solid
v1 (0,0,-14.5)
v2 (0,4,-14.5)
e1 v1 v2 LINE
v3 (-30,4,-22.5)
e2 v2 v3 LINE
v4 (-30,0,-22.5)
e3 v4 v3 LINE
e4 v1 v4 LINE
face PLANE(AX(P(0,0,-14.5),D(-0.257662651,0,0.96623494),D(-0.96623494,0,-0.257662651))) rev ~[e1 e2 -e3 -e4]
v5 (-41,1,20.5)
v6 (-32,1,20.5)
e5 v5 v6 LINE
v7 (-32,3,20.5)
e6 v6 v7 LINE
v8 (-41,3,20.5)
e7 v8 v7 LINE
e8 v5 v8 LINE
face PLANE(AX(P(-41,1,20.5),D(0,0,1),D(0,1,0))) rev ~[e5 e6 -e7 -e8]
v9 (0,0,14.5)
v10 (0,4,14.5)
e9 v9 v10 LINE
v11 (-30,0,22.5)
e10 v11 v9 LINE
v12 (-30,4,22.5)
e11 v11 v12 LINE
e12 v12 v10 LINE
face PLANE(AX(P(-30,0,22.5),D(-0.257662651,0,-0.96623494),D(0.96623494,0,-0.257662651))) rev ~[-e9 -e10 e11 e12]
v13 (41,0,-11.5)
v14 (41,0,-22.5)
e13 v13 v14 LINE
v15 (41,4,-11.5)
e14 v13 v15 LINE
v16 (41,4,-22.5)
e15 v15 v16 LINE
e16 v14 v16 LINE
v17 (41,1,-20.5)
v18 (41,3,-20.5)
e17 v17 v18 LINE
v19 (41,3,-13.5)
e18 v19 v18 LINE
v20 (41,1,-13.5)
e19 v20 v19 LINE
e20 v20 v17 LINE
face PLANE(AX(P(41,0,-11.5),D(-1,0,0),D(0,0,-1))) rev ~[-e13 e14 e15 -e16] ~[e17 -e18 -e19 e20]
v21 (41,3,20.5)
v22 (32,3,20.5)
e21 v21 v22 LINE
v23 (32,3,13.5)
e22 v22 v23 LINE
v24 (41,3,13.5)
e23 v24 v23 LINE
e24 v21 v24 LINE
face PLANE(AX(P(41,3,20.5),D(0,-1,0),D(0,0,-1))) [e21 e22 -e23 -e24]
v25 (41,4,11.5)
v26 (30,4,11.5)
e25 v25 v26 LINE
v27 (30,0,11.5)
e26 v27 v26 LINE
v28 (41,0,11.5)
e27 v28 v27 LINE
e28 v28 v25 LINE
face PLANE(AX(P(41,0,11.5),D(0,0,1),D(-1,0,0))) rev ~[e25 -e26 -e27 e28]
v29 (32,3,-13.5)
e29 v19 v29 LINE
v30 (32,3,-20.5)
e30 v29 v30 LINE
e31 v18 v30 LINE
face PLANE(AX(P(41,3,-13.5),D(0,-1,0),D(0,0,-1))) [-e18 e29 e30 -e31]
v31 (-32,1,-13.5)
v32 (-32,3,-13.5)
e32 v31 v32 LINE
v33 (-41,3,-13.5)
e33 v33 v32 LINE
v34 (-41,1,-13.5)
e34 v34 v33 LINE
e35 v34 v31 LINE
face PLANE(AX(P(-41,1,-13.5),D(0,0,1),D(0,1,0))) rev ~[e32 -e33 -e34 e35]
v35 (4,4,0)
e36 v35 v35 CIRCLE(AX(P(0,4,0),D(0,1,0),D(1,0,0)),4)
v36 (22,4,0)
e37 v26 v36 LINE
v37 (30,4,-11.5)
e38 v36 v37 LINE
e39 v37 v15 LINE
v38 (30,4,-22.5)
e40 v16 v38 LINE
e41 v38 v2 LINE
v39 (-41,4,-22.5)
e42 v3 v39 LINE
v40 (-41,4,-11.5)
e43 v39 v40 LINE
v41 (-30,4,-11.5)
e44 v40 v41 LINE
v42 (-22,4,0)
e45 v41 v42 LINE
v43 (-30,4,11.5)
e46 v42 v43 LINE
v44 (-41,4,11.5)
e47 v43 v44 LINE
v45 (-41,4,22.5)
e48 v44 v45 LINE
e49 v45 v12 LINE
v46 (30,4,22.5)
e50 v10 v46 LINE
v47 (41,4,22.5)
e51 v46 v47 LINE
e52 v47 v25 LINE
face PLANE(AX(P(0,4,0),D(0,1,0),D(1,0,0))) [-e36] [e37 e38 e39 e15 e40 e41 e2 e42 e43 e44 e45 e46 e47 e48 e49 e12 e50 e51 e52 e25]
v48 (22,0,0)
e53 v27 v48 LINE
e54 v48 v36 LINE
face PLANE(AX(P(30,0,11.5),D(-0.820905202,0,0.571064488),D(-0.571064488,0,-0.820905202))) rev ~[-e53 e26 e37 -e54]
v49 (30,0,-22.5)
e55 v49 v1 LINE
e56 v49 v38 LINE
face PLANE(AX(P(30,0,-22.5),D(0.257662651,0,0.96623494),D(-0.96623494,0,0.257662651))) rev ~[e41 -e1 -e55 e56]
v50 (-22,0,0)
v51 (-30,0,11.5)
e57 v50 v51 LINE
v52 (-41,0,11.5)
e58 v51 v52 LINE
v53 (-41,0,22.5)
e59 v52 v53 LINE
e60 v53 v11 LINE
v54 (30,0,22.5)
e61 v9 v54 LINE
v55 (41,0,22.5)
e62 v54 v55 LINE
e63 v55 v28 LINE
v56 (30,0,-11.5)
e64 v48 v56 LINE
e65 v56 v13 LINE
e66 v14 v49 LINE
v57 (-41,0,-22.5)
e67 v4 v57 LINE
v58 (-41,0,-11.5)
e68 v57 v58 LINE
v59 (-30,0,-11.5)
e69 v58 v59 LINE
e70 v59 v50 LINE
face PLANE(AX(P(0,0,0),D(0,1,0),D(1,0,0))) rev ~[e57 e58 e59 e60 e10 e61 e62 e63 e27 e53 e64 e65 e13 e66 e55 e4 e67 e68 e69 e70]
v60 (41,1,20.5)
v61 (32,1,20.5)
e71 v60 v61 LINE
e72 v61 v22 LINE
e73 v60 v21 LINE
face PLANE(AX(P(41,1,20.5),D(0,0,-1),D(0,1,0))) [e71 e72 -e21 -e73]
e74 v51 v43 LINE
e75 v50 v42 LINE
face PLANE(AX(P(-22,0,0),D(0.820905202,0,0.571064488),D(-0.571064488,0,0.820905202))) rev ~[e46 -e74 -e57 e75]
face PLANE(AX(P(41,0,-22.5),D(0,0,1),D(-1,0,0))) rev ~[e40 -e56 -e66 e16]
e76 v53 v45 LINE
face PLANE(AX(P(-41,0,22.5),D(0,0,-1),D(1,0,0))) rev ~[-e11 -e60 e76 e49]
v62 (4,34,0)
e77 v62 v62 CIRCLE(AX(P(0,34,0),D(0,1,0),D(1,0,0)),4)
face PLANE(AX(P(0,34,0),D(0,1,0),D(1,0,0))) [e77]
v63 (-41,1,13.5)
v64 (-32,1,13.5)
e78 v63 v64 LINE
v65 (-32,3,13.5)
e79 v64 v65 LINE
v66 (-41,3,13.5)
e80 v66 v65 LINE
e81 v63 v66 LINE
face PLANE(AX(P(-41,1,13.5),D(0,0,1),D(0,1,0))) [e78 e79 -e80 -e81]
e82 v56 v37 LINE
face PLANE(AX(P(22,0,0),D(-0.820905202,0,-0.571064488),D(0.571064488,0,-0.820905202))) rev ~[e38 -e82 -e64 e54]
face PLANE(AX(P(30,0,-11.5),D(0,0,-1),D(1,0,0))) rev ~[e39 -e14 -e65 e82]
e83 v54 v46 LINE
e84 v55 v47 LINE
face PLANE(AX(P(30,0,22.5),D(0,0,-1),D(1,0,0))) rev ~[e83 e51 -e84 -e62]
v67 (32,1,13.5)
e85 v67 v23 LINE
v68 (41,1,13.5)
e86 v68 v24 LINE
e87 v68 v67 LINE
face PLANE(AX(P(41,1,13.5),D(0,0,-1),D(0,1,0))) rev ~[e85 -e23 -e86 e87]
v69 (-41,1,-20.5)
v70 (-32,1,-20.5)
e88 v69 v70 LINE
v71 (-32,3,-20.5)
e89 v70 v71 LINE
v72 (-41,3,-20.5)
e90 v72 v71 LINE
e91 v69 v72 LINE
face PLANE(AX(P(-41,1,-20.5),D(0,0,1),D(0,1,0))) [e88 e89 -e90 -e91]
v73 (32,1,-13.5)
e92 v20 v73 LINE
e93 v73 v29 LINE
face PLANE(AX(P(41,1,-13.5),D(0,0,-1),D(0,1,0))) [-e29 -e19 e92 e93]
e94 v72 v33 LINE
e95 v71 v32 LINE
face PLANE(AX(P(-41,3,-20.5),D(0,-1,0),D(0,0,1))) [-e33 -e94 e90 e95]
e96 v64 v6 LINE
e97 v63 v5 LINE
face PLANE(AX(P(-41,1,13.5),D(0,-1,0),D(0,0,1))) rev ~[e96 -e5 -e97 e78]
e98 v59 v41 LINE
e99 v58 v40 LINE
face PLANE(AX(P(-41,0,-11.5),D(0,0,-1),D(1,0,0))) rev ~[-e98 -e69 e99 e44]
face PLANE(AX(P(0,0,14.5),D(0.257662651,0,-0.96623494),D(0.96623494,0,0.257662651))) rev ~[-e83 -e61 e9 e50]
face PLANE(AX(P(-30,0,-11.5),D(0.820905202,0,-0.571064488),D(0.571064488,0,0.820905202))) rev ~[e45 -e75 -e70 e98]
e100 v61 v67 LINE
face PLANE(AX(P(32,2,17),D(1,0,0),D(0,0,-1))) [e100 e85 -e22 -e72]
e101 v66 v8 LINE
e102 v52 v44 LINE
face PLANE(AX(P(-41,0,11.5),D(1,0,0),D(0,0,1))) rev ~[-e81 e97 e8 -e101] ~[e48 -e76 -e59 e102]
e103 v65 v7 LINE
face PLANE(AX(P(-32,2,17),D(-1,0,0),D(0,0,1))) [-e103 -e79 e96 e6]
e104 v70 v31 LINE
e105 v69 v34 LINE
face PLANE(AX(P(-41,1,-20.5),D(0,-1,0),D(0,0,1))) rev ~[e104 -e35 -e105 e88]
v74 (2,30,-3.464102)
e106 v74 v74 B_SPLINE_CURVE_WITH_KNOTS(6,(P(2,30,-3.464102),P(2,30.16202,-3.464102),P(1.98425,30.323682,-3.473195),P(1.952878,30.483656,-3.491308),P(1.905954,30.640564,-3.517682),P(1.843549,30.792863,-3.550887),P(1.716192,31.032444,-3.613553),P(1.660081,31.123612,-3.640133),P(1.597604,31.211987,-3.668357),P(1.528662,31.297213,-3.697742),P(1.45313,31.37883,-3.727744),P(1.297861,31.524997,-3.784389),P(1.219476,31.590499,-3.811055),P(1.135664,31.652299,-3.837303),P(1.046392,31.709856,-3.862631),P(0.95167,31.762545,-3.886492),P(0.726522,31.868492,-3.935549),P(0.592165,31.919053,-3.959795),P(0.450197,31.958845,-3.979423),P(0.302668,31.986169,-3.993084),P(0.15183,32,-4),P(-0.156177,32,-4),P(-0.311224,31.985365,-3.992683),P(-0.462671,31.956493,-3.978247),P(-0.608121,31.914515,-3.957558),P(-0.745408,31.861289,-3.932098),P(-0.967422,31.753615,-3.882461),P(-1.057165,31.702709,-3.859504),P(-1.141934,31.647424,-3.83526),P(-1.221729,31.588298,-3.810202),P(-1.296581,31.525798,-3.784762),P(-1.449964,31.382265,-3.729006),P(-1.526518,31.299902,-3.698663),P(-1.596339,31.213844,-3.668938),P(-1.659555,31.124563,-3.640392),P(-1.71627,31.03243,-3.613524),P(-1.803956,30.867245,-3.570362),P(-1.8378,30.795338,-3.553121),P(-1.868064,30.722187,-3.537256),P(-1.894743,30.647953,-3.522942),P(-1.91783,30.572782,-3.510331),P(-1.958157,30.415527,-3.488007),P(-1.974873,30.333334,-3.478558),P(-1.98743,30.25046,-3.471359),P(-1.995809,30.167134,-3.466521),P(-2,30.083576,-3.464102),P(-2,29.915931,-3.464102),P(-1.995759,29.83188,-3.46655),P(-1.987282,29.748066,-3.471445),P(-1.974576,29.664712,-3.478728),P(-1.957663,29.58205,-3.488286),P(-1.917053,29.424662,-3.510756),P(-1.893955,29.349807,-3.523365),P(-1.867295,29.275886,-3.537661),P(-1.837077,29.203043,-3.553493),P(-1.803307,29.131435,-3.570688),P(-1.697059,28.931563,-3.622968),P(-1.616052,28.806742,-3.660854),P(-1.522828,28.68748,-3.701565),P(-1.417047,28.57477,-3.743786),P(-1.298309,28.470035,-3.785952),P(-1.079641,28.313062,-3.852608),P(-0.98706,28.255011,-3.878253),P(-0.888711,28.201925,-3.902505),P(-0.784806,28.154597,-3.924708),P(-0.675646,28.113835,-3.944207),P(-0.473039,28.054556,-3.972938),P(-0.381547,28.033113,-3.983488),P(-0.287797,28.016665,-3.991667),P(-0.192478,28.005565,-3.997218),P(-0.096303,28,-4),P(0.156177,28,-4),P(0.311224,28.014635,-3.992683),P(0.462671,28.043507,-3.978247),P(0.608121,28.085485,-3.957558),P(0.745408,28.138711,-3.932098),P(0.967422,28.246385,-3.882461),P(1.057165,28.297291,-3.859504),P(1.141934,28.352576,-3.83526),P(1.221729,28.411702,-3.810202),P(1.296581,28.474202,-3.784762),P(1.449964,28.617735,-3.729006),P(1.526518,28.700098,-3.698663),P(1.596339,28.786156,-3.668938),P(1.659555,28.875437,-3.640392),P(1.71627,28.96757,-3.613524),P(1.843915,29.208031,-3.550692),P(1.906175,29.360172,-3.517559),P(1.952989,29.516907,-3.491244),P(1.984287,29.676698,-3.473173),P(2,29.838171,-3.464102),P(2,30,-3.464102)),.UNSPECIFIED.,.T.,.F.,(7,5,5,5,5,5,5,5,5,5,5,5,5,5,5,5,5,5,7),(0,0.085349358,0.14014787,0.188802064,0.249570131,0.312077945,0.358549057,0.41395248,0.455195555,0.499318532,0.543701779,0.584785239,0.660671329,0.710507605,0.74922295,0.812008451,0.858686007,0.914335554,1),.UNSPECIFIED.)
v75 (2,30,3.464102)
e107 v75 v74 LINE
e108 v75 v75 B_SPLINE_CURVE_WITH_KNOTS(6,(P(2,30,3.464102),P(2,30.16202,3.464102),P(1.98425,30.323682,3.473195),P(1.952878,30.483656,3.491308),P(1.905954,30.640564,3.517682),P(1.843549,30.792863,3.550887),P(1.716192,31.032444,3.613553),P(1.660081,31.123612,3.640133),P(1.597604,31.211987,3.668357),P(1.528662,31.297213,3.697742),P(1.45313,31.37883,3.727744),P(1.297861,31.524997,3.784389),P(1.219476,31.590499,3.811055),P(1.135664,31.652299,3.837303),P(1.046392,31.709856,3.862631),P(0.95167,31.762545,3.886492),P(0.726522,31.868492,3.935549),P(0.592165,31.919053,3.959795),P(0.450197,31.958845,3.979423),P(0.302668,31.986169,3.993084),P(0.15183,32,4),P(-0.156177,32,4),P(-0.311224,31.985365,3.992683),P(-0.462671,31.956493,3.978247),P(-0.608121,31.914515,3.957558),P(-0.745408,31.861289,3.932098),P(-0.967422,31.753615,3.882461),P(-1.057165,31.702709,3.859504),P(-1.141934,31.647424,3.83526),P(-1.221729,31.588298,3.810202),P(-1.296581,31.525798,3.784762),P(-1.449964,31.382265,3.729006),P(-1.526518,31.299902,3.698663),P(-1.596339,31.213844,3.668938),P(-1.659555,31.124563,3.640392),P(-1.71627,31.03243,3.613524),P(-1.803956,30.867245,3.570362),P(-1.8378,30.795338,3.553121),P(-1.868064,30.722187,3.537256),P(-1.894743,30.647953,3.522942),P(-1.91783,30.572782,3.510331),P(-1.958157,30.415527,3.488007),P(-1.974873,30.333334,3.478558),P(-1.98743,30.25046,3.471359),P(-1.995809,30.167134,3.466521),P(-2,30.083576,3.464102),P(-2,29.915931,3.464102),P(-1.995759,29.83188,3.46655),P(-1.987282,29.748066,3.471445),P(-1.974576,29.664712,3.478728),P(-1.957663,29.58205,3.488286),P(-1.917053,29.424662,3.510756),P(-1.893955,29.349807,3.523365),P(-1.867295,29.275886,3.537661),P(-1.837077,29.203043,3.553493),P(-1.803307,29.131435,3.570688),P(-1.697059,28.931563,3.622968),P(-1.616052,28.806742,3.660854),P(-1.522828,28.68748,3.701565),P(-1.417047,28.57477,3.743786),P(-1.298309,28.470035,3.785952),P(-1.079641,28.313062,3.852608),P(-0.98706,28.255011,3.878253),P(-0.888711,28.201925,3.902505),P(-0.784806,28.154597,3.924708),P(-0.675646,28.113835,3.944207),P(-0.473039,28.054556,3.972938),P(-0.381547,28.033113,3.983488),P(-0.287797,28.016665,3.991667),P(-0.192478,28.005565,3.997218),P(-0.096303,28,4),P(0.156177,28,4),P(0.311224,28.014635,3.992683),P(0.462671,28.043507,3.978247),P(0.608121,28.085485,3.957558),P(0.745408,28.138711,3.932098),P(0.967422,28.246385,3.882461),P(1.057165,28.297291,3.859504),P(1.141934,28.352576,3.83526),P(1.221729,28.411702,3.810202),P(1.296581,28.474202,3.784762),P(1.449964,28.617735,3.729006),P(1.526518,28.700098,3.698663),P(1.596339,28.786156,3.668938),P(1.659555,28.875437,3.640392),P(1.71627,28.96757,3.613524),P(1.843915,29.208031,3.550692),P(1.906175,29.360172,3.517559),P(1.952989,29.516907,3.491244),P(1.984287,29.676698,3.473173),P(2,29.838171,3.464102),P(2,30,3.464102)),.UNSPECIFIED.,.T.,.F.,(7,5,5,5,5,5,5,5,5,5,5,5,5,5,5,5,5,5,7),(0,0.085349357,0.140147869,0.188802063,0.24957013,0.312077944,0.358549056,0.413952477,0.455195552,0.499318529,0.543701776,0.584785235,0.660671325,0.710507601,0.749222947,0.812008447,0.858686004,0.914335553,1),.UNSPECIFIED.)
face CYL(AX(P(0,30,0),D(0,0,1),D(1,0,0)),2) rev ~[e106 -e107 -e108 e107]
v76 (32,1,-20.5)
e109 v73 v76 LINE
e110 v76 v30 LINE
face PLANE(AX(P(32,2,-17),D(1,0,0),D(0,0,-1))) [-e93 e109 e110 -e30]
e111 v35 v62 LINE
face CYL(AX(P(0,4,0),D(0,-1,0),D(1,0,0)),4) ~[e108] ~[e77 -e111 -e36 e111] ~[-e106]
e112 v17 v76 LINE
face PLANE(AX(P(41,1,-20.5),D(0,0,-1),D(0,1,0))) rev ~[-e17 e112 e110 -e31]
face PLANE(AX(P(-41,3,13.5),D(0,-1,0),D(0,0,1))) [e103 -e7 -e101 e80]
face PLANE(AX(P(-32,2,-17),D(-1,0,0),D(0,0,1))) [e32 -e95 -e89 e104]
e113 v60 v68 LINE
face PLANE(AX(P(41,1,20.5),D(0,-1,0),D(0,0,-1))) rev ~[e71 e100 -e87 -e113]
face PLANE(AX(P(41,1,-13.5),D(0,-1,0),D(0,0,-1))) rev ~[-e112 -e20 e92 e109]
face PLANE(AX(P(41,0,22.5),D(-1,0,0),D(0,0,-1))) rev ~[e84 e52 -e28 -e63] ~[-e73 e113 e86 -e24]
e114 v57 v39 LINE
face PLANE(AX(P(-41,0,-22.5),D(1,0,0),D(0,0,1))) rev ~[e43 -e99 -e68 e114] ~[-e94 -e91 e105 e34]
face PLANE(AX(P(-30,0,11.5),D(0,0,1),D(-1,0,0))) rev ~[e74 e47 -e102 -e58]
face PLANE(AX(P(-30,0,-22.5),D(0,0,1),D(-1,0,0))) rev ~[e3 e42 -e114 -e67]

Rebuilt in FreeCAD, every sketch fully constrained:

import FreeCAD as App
import Part
import Sketcher


def add_polygon(sketch, points):
    """Adds a closed chain of lines whose ends are joined by coincident constraints."""
    first, n = sketch.GeometryCount, len(points)
    for a, b in zip(points, points[1:] + points[:1]):
        sketch.addGeometry(Part.LineSegment(App.Vector(*a, 0), App.Vector(*b, 0)), False)
    for i in range(n):
        sketch.addConstraint(Sketcher.Constraint("Coincident", first + i, 2, first + (i + 1) % n, 1))

doc = App.newDocument("Part")
body = doc.addObject("PartDesign::Body", "Body")

# Sketch on XZ plane
sketch1 = doc.addObject("Sketcher::SketchObject", "Sketch")
body.addObject(sketch1)
sketch1.AttachmentSupport = (doc.XZ_Plane, [""])
sketch1.MapMode = "FlatFace"
add_polygon(sketch1, [(-41, 22), (-30, 22), (0, 14), (30, 22), (41, 22), (41, 12), (30, 12), (22, 0), (30, -12), (41, -12), (41, -22), (30, -22), (0, -14), (-30, -22), (-41, -22), (-41, -12), (-30, -12), (-22, 0), (-30, 12), (-41, 12)])  # lines 0-19
sketch1.addConstraint(Sketcher.Constraint("Horizontal", 0))
sketch1.addConstraint(Sketcher.Constraint("Horizontal", 3))
sketch1.addConstraint(Sketcher.Constraint("Vertical", 4))
sketch1.addConstraint(Sketcher.Constraint("Horizontal", 5))
sketch1.addConstraint(Sketcher.Constraint("Horizontal", 8))
sketch1.addConstraint(Sketcher.Constraint("Vertical", 9))
sketch1.addConstraint(Sketcher.Constraint("Horizontal", 10))
sketch1.addConstraint(Sketcher.Constraint("Horizontal", 13))
sketch1.addConstraint(Sketcher.Constraint("Vertical", 14))
sketch1.addConstraint(Sketcher.Constraint("Horizontal", 15))
sketch1.addConstraint(Sketcher.Constraint("Horizontal", 18))
sketch1.addConstraint(Sketcher.Constraint("Vertical", 19))
sketch1.addConstraint(Sketcher.Constraint("Symmetric", 0, 2, 10, 2, -1, 1))
sketch1.addConstraint(Sketcher.Constraint("Symmetric", 1, 2, 11, 2, -1, 1))
sketch1.addConstraint(Sketcher.Constraint("Symmetric", 2, 2, 12, 2, -1, 1))
sketch1.addConstraint(Sketcher.Constraint("Symmetric", 4, 2, 14, 2, -1, 1))
sketch1.addConstraint(Sketcher.Constraint("Symmetric", 6, 2, 16, 2, -1, 1))
sketch1.addConstraint(Sketcher.Constraint("Symmetric", 7, 2, 17, 2, -1, 1))
sketch1.addConstraint(Sketcher.Constraint("Symmetric", 0, 2, 2, 2, -2))
sketch1.addConstraint(Sketcher.Constraint("Symmetric", 8, 2, 14, 2, -2))
sketch1.addConstraint(Sketcher.Constraint("PointOnObject", 1, 2, -2))
sketch1.addConstraint(Sketcher.Constraint("PointOnObject", 6, 2, -1))
sketch1.addConstraint(Sketcher.Constraint("Parallel", 6, 16))
sketch1.addConstraint(Sketcher.Constraint("Vertical", 2, 2, 5, 2))
sketch1.addConstraint(Sketcher.Constraint("Vertical", 5, 2, 7, 2))
sketch1.addConstraint(Sketcher.Constraint("Vertical", 14, 2, 18, 2))
sketch1.addConstraint(Sketcher.Constraint("Equal", 18, 4))
sketch1.addConstraint(Sketcher.Constraint("DistanceX", 0, 1, 0, 2, 11.0))
sketch1.addConstraint(Sketcher.Constraint("DistanceX", 0, 2, -1, 1, 30.0))
sketch1.addConstraint(Sketcher.Constraint("DistanceX", -1, 1, 6, 2, 22.0))
sketch1.addConstraint(Sketcher.Constraint("DistanceY", 1, 2, 0, 2, 8.0))
sketch1.addConstraint(Sketcher.Constraint("DistanceY", 7, 2, 5, 2, 23.0))
pad1 = doc.addObject("PartDesign::Pad", "Pad")
body.addObject(pad1)
pad1.Profile = sketch1
pad1.Length = 4
pad1.Reversed = True

# Sketch on YZ plane
sketch2 = doc.addObject("Sketcher::SketchObject", "Sketch001")
body.addObject(sketch2)
sketch2.AttachmentSupport = (doc.YZ_Plane, [""])
sketch2.MapMode = "FlatFace"
sketch2.AttachmentOffset = App.Placement(App.Vector(0, 0, -41), App.Rotation())
add_polygon(sketch2, [(3, -20.5), (1, -20.5), (1, -13.5), (3, -13.5)])  # lines 0-3
sketch2.addConstraint(Sketcher.Constraint("Horizontal", 0))
sketch2.addConstraint(Sketcher.Constraint("Vertical", 1))
sketch2.addConstraint(Sketcher.Constraint("Horizontal", 2))
sketch2.addConstraint(Sketcher.Constraint("Vertical", 3))
sketch2.addConstraint(Sketcher.Constraint("DistanceX", 0, 2, 0, 1, 2.0))
sketch2.addConstraint(Sketcher.Constraint("DistanceY", 1, 1, 1, 2, 7.0))
sketch2.addConstraint(Sketcher.Constraint("DistanceX", -1, 1, 0, 2, 1.0))
sketch2.addConstraint(Sketcher.Constraint("DistanceY", 0, 2, -1, 1, 20.5))
pocket1 = doc.addObject("PartDesign::Pocket", "Pocket")
body.addObject(pocket1)
pocket1.Profile = sketch2
pocket1.Length = 9
pocket1.Reversed = True

# Sketch on YZ plane
sketch3 = doc.addObject("Sketcher::SketchObject", "Sketch002")
body.addObject(sketch3)
sketch3.AttachmentSupport = (doc.YZ_Plane, [""])
sketch3.MapMode = "FlatFace"
sketch3.AttachmentOffset = App.Placement(App.Vector(0, 0, -41), App.Rotation())
add_polygon(sketch3, [(3, 13.5), (1, 13.5), (1, 20.5), (3, 20.5)])  # lines 0-3
sketch3.addConstraint(Sketcher.Constraint("Horizontal", 0))
sketch3.addConstraint(Sketcher.Constraint("Vertical", 1))
sketch3.addConstraint(Sketcher.Constraint("Horizontal", 2))
sketch3.addConstraint(Sketcher.Constraint("Vertical", 3))
sketch3.addConstraint(Sketcher.Constraint("DistanceX", 0, 2, 0, 1, 2.0))
sketch3.addConstraint(Sketcher.Constraint("DistanceY", 1, 1, 1, 2, 7.0))
sketch3.addConstraint(Sketcher.Constraint("DistanceX", -1, 1, 0, 2, 1.0))
sketch3.addConstraint(Sketcher.Constraint("DistanceY", -1, 1, 0, 2, 13.5))
pocket2 = doc.addObject("PartDesign::Pocket", "Pocket001")
body.addObject(pocket2)
pocket2.Profile = sketch3
pocket2.Length = 9
pocket2.Reversed = True

# Sketch on YZ plane
sketch4 = doc.addObject("Sketcher::SketchObject", "Sketch003")
body.addObject(sketch4)
sketch4.AttachmentSupport = (doc.YZ_Plane, [""])
sketch4.MapMode = "FlatFace"
sketch4.AttachmentOffset = App.Placement(App.Vector(0, 0, 41), App.Rotation())
add_polygon(sketch4, [(3, 20.5), (1, 20.5), (1, 13.5), (3, 13.5)])  # lines 0-3
sketch4.addConstraint(Sketcher.Constraint("Horizontal", 0))
sketch4.addConstraint(Sketcher.Constraint("Vertical", 1))
sketch4.addConstraint(Sketcher.Constraint("Horizontal", 2))
sketch4.addConstraint(Sketcher.Constraint("Vertical", 3))
sketch4.addConstraint(Sketcher.Constraint("DistanceX", 0, 2, 0, 1, 2.0))
sketch4.addConstraint(Sketcher.Constraint("DistanceY", 1, 2, 1, 1, 7.0))
sketch4.addConstraint(Sketcher.Constraint("DistanceX", -1, 1, 0, 2, 1.0))
sketch4.addConstraint(Sketcher.Constraint("DistanceY", -1, 1, 0, 2, 20.5))
pocket3 = doc.addObject("PartDesign::Pocket", "Pocket002")
body.addObject(pocket3)
pocket3.Profile = sketch4
pocket3.Length = 9

# Sketch on YZ plane
sketch5 = doc.addObject("Sketcher::SketchObject", "Sketch004")
body.addObject(sketch5)
sketch5.AttachmentSupport = (doc.YZ_Plane, [""])
sketch5.MapMode = "FlatFace"
sketch5.AttachmentOffset = App.Placement(App.Vector(0, 0, 41), App.Rotation())
add_polygon(sketch5, [(3, -13.5), (1, -13.5), (1, -20.5), (3, -20.5)])  # lines 0-3
sketch5.addConstraint(Sketcher.Constraint("Horizontal", 0))
sketch5.addConstraint(Sketcher.Constraint("Vertical", 1))
sketch5.addConstraint(Sketcher.Constraint("Horizontal", 2))
sketch5.addConstraint(Sketcher.Constraint("Vertical", 3))
sketch5.addConstraint(Sketcher.Constraint("DistanceX", 0, 2, 0, 1, 2.0))
sketch5.addConstraint(Sketcher.Constraint("DistanceY", 1, 2, 1, 1, 7.0))
sketch5.addConstraint(Sketcher.Constraint("DistanceX", -1, 1, 0, 2, 1.0))
sketch5.addConstraint(Sketcher.Constraint("DistanceY", 0, 2, -1, 1, 13.5))
pocket4 = doc.addObject("PartDesign::Pocket", "Pocket003")
body.addObject(pocket4)
pocket4.Profile = sketch5
pocket4.Length = 9

# Sketch on XZ plane
sketch6 = doc.addObject("Sketcher::SketchObject", "Sketch005")
body.addObject(sketch6)
sketch6.AttachmentSupport = (doc.XZ_Plane, [""])
sketch6.MapMode = "FlatFace"
sketch6.AttachmentOffset = App.Placement(App.Vector(0, 0, -4), App.Rotation())
sketch6.addGeometry(Part.Circle(App.Vector(0, 0, 0), App.Vector(0, 0, 1), 4), False)
sketch6.addConstraint(Sketcher.Constraint("Coincident", 0, 3, -1, 1))
sketch6.addConstraint(Sketcher.Constraint("Diameter", 0, 8.0))
pad2 = doc.addObject("PartDesign::Pad", "Pad001")
body.addObject(pad2)
pad2.Profile = sketch6
pad2.Length = 30
pad2.Reversed = True

# Sketch on XY plane
sketch7 = doc.addObject("Sketcher::SketchObject", "Sketch006")
body.addObject(sketch7)
sketch7.AttachmentSupport = (doc.XY_Plane, [""])
sketch7.MapMode = "FlatFace"
sketch7.addGeometry(Part.Circle(App.Vector(0, 30, 0), App.Vector(0, 0, 1), 2), False)
sketch7.addConstraint(Sketcher.Constraint("PointOnObject", 0, 3, -2))
sketch7.addConstraint(Sketcher.Constraint("Diameter", 0, 4.0))
sketch7.addConstraint(Sketcher.Constraint("DistanceY", -1, 1, 0, 3, 30.0))
pocket5 = doc.addObject("PartDesign::Pocket", "Pocket004")
body.addObject(pocket5)
pocket5.Profile = sketch7
pocket5.Type = "ThroughAll"
pocket5.Midplane = True

doc.recompute()
